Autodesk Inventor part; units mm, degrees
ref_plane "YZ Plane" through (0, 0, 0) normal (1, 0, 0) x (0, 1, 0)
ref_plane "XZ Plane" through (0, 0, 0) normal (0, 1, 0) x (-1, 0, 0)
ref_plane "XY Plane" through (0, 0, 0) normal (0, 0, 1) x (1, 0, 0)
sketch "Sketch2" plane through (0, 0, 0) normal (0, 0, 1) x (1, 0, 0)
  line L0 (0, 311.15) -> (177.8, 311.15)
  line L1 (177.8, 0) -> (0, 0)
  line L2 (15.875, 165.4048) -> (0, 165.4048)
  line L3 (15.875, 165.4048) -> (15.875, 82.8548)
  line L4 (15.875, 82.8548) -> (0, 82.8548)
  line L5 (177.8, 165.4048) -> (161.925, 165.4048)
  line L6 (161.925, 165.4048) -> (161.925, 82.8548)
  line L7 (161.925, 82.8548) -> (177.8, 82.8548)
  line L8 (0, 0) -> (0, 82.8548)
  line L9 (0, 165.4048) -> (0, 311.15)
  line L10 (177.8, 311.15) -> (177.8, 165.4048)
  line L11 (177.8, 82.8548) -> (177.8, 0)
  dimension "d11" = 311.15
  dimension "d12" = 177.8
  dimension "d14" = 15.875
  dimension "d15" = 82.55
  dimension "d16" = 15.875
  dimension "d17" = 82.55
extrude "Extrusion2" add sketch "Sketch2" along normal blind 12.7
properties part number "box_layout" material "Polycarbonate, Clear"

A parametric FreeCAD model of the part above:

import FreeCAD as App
import Part
import Sketcher
from FreeCAD import Vector
Q = App.Units.Quantity

doc = App.newDocument("Part")
body = doc.addObject("PartDesign::Body", "Body")

sketch1 = body.newObject("Sketcher::SketchObject", "Sketch")
sketch1.AttachmentSupport = (doc.getObject("XY_Plane"), [""])
sketch1.MapMode = "FlatFace"
sketch1.addGeometry([
    Part.LineSegment(Vector(178, 311, 0), Vector(0, 311, 0)),
    Part.LineSegment(Vector(0, 311, 0), Vector(0, 165, 0)),
    Part.LineSegment(Vector(0, 165, 0), Vector(16, 165, 0)),
    Part.LineSegment(Vector(16, 165, 0), Vector(16, 83, 0)),
    Part.LineSegment(Vector(16, 83, 0), Vector(0, 83, 0)),
    Part.LineSegment(Vector(0, 83, 0), Vector(0, 0, 0)),
    Part.LineSegment(Vector(0, 0, 0), Vector(178, 0, 0)),
    Part.LineSegment(Vector(178, 0, 0), Vector(178, 83, 0)),
    Part.LineSegment(Vector(178, 83, 0), Vector(162, 83, 0)),
    Part.LineSegment(Vector(162, 83, 0), Vector(162, 165, 0)),
    Part.LineSegment(Vector(162, 165, 0), Vector(178, 165, 0)),
    Part.LineSegment(Vector(178, 165, 0), Vector(178, 311, 0)),
], False)
sketch1.addConstraint([
    Sketcher.Constraint("Coincident", 0, 2, 1, 1),
    Sketcher.Constraint("Coincident", 1, 2, 2, 1),
    Sketcher.Constraint("Coincident", 2, 2, 3, 1),
    Sketcher.Constraint("Coincident", 3, 2, 4, 1),
    Sketcher.Constraint("Coincident", 4, 2, 5, 1),
    Sketcher.Constraint("Coincident", 5, 2, 6, 1),
    Sketcher.Constraint("Coincident", 6, 2, 7, 1),
    Sketcher.Constraint("Coincident", 7, 2, 8, 1),
    Sketcher.Constraint("Coincident", 8, 2, 9, 1),
    Sketcher.Constraint("Coincident", 9, 2, 10, 1),
    Sketcher.Constraint("Coincident", 10, 2, 11, 1),
    Sketcher.Constraint("Coincident", 11, 2, 0, 1),
    Sketcher.Constraint("Horizontal", 0),
    Sketcher.Constraint("Vertical", 1),
    Sketcher.Constraint("Horizontal", 2),
    Sketcher.Constraint("Vertical", 3),
    Sketcher.Constraint("Horizontal", 4),
    Sketcher.Constraint("Vertical", 5),
    Sketcher.Constraint("Horizontal", 6),
    Sketcher.Constraint("Vertical", 7),
    Sketcher.Constraint("Horizontal", 8),
    Sketcher.Constraint("Vertical", 9),
    Sketcher.Constraint("Horizontal", 10),
    Sketcher.Constraint("Vertical", 11),
    Sketcher.Constraint("Coincident", 5, 2, -1, 1),
    Sketcher.Constraint("PointOnObject", 0, 2, -2),
    Sketcher.Constraint("Horizontal", 4, 2, 7, 2),
    Sketcher.Constraint("Horizontal", 2, 2, 9, 2),
    Sketcher.Constraint("Vertical", 7, 2, 10, 2),
    Sketcher.Constraint("Equal", 4, 8),
    Sketcher.Constraint("DistanceX", 0, 2, 0, 1, Q("7 in")),
    Sketcher.Constraint("DistanceY", 3, 2, 3, 1, Q("3.25 in")),
    Sketcher.Constraint("DistanceX", 2, 1, 2, 2, Q("0.625 in")),
    Sketcher.Constraint("DistanceY", -1, 1, 0, 2, Q("12.25 in")),
    Sketcher.Constraint("DistanceY", 1, 2, 1, 1, Q("5.738 in")),
])
pad1 = body.newObject("PartDesign::Pad", "Pad")
pad1.Profile = sketch1
pad1.Length = Q("0.5 in")

doc.recompute()
